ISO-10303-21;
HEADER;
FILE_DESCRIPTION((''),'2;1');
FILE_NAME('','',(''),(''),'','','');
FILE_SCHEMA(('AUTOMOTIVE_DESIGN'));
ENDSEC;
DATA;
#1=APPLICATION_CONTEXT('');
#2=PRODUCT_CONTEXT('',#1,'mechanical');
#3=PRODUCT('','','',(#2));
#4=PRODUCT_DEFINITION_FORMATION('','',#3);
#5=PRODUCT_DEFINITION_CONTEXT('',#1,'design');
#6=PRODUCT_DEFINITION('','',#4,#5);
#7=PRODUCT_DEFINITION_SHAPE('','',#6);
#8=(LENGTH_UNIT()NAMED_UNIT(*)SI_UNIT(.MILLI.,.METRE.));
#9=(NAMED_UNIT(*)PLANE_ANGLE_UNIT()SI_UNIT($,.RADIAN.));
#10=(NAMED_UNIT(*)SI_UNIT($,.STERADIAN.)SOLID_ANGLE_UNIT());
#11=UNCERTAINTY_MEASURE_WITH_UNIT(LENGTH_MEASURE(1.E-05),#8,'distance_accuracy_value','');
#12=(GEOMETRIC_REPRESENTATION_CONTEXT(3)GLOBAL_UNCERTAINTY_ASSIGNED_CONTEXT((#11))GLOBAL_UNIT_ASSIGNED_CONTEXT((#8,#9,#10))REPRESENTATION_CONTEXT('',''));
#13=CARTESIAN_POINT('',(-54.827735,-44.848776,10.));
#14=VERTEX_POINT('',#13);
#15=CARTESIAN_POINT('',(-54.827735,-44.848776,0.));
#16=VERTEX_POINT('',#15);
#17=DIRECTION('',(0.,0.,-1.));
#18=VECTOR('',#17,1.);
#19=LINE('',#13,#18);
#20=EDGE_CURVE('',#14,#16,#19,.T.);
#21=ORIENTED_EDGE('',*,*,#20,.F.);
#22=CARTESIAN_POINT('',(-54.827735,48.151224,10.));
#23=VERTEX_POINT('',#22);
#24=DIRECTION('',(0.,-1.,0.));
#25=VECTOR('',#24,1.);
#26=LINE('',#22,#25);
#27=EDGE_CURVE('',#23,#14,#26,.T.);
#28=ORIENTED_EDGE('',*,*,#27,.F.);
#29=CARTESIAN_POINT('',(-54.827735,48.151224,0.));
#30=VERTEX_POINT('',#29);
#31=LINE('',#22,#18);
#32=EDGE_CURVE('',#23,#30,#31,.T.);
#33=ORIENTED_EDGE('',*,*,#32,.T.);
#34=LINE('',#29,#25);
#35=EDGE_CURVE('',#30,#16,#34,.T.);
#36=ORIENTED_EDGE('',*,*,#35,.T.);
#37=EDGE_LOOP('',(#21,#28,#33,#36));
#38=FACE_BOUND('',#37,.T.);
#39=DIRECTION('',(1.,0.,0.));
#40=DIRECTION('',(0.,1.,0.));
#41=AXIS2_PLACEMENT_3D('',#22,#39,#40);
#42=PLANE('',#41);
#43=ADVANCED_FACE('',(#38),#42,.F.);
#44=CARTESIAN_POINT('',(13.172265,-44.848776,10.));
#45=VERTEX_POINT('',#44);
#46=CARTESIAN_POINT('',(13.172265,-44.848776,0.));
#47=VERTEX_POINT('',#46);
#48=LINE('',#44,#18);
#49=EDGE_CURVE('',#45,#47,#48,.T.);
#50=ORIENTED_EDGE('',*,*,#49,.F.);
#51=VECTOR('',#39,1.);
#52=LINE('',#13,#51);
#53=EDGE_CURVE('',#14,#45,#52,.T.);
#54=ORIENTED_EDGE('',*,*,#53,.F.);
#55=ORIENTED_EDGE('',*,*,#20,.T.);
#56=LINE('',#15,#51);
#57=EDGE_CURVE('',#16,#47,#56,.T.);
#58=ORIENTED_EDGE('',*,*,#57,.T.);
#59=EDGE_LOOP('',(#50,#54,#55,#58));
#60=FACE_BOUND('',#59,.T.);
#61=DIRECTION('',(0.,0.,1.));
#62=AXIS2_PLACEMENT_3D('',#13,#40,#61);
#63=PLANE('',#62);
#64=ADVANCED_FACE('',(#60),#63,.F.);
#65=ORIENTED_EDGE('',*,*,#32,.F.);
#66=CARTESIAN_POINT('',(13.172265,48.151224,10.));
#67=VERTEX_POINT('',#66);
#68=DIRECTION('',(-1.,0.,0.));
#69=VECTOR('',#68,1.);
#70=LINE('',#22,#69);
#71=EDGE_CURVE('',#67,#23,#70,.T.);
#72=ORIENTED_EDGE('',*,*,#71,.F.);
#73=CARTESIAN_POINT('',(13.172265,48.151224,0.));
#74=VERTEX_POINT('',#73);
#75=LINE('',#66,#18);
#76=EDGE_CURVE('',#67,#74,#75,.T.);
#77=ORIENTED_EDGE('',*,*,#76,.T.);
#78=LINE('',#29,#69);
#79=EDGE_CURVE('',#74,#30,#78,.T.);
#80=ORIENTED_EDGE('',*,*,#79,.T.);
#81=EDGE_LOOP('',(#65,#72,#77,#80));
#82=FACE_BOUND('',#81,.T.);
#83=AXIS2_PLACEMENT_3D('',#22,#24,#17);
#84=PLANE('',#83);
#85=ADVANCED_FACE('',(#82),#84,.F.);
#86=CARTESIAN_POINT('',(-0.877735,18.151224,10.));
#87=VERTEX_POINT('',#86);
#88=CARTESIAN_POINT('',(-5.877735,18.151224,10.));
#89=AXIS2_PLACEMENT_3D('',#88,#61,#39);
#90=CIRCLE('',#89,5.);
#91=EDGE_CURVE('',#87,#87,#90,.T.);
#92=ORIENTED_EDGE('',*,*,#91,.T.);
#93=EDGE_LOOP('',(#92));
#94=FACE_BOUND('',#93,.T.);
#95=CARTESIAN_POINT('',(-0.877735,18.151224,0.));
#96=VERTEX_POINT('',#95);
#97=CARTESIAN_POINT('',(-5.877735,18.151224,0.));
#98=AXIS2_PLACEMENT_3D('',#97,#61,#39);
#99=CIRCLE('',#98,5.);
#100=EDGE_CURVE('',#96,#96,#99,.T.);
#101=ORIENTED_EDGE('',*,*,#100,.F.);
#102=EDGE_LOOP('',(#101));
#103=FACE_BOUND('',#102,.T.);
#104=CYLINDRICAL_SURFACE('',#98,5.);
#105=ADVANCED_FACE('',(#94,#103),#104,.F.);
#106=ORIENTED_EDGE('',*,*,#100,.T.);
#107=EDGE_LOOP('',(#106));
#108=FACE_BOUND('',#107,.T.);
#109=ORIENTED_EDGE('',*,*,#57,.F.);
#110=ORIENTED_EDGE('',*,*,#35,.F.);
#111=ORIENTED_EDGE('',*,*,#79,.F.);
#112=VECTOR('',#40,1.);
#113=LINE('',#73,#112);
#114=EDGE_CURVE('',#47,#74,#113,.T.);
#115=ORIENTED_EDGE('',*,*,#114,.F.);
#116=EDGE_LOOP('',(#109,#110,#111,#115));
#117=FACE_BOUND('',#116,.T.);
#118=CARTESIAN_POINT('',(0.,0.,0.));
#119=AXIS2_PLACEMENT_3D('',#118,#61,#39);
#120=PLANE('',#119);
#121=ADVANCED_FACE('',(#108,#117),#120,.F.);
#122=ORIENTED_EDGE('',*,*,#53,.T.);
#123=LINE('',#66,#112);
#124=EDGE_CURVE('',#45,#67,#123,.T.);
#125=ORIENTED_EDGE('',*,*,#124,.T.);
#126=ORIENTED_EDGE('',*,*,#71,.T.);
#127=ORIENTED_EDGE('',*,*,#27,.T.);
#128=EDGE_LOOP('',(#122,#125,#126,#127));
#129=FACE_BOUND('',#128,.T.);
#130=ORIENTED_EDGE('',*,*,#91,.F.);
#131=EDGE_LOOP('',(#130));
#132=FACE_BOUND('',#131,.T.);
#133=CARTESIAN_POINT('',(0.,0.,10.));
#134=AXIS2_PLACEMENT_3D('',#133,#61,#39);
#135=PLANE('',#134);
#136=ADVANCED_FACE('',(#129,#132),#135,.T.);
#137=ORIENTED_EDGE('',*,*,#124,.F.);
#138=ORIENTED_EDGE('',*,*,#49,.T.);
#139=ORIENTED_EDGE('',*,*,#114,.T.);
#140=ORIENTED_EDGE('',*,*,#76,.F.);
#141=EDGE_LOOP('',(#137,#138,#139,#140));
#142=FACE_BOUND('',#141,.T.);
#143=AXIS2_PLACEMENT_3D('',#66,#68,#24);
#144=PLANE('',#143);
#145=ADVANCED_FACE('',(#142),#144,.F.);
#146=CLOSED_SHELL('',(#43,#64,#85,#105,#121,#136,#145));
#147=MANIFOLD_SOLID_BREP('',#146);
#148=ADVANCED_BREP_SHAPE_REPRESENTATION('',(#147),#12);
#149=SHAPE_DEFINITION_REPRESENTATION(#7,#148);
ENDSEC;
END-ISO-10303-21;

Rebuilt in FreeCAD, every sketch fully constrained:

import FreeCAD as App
import Part
import Sketcher
Q = App.Units.Quantity

doc = App.newDocument("Part")
body = doc.addObject("PartDesign::Body", "Body")

# Sketch on XY plane
sketch1 = body.newObject("Sketcher::SketchObject", "Sketch")
sketch1.AttachmentSupport = (doc.getObject("XY_Plane"), [""])
sketch1.MapMode = "FlatFace"
sketch1.addGeometry(Part.LineSegment(App.Vector(-55, 48, 0), App.Vector(-55, -45, 0)), False)
sketch1.addGeometry(Part.LineSegment(App.Vector(-55, -45, 0), App.Vector(13, -45, 0)), False)
sketch1.addGeometry(Part.LineSegment(App.Vector(13, -45, 0), App.Vector(13, 48, 0)), False)
sketch1.addGeometry(Part.LineSegment(App.Vector(13, 48, 0), App.Vector(-55, 48, 0)), False)
sketch1.addConstraint(Sketcher.Constraint("Coincident", 0, 2, 1, 1))
sketch1.addConstraint(Sketcher.Constraint("Coincident", 1, 2, 2, 1))
sketch1.addConstraint(Sketcher.Constraint("Coincident", 2, 2, 3, 1))
sketch1.addConstraint(Sketcher.Constraint("Coincident", 3, 2, 0, 1))
sketch1.addConstraint(Sketcher.Constraint("Vertical", 0))
sketch1.addConstraint(Sketcher.Constraint("Horizontal", 1))
sketch1.addConstraint(Sketcher.Constraint("Vertical", 2))
sketch1.addConstraint(Sketcher.Constraint("Horizontal", 3))
sketch1.addConstraint(Sketcher.Constraint("DistanceX", 1, 1, 1, 2, Q("68 mm")))
sketch1.addConstraint(Sketcher.Constraint("DistanceY", 0, 2, 0, 1, Q("93 mm")))
sketch1.addConstraint(Sketcher.Constraint("DistanceX", 0, 2, -1, 1, Q("54.827735 mm")))
sketch1.addConstraint(Sketcher.Constraint("DistanceY", 0, 2, -1, 1, Q("44.848776 mm")))
pad1 = body.newObject("PartDesign::Pad", "Pad")
pad1.Profile = sketch1
pad1.Length = 10

# Sketch on XY plane
sketch2 = body.newObject("Sketcher::SketchObject", "Sketch001")
sketch2.AttachmentSupport = (doc.getObject("XY_Plane"), [""])
sketch2.MapMode = "FlatFace"
sketch2.AttachmentOffset = App.Placement(App.Vector(0, 0, 10), App.Rotation())
sketch2.addGeometry(Part.Circle(App.Vector(-6, 18, 0), App.Vector(0, 0, 1), 5), False)
sketch2.addConstraint(Sketcher.Constraint("Diameter", 0, Q("10 mm")))
sketch2.addConstraint(Sketcher.Constraint("DistanceX", 0, 3, -1, 1, Q("5.877735 mm")))
sketch2.addConstraint(Sketcher.Constraint("DistanceY", -1, 1, 0, 3, Q("18.151224 mm")))
pocket1 = body.newObject("PartDesign::Pocket", "Pocket")
pocket1.Profile = sketch2
pocket1.Type = "ThroughAll"

doc.recompute()
